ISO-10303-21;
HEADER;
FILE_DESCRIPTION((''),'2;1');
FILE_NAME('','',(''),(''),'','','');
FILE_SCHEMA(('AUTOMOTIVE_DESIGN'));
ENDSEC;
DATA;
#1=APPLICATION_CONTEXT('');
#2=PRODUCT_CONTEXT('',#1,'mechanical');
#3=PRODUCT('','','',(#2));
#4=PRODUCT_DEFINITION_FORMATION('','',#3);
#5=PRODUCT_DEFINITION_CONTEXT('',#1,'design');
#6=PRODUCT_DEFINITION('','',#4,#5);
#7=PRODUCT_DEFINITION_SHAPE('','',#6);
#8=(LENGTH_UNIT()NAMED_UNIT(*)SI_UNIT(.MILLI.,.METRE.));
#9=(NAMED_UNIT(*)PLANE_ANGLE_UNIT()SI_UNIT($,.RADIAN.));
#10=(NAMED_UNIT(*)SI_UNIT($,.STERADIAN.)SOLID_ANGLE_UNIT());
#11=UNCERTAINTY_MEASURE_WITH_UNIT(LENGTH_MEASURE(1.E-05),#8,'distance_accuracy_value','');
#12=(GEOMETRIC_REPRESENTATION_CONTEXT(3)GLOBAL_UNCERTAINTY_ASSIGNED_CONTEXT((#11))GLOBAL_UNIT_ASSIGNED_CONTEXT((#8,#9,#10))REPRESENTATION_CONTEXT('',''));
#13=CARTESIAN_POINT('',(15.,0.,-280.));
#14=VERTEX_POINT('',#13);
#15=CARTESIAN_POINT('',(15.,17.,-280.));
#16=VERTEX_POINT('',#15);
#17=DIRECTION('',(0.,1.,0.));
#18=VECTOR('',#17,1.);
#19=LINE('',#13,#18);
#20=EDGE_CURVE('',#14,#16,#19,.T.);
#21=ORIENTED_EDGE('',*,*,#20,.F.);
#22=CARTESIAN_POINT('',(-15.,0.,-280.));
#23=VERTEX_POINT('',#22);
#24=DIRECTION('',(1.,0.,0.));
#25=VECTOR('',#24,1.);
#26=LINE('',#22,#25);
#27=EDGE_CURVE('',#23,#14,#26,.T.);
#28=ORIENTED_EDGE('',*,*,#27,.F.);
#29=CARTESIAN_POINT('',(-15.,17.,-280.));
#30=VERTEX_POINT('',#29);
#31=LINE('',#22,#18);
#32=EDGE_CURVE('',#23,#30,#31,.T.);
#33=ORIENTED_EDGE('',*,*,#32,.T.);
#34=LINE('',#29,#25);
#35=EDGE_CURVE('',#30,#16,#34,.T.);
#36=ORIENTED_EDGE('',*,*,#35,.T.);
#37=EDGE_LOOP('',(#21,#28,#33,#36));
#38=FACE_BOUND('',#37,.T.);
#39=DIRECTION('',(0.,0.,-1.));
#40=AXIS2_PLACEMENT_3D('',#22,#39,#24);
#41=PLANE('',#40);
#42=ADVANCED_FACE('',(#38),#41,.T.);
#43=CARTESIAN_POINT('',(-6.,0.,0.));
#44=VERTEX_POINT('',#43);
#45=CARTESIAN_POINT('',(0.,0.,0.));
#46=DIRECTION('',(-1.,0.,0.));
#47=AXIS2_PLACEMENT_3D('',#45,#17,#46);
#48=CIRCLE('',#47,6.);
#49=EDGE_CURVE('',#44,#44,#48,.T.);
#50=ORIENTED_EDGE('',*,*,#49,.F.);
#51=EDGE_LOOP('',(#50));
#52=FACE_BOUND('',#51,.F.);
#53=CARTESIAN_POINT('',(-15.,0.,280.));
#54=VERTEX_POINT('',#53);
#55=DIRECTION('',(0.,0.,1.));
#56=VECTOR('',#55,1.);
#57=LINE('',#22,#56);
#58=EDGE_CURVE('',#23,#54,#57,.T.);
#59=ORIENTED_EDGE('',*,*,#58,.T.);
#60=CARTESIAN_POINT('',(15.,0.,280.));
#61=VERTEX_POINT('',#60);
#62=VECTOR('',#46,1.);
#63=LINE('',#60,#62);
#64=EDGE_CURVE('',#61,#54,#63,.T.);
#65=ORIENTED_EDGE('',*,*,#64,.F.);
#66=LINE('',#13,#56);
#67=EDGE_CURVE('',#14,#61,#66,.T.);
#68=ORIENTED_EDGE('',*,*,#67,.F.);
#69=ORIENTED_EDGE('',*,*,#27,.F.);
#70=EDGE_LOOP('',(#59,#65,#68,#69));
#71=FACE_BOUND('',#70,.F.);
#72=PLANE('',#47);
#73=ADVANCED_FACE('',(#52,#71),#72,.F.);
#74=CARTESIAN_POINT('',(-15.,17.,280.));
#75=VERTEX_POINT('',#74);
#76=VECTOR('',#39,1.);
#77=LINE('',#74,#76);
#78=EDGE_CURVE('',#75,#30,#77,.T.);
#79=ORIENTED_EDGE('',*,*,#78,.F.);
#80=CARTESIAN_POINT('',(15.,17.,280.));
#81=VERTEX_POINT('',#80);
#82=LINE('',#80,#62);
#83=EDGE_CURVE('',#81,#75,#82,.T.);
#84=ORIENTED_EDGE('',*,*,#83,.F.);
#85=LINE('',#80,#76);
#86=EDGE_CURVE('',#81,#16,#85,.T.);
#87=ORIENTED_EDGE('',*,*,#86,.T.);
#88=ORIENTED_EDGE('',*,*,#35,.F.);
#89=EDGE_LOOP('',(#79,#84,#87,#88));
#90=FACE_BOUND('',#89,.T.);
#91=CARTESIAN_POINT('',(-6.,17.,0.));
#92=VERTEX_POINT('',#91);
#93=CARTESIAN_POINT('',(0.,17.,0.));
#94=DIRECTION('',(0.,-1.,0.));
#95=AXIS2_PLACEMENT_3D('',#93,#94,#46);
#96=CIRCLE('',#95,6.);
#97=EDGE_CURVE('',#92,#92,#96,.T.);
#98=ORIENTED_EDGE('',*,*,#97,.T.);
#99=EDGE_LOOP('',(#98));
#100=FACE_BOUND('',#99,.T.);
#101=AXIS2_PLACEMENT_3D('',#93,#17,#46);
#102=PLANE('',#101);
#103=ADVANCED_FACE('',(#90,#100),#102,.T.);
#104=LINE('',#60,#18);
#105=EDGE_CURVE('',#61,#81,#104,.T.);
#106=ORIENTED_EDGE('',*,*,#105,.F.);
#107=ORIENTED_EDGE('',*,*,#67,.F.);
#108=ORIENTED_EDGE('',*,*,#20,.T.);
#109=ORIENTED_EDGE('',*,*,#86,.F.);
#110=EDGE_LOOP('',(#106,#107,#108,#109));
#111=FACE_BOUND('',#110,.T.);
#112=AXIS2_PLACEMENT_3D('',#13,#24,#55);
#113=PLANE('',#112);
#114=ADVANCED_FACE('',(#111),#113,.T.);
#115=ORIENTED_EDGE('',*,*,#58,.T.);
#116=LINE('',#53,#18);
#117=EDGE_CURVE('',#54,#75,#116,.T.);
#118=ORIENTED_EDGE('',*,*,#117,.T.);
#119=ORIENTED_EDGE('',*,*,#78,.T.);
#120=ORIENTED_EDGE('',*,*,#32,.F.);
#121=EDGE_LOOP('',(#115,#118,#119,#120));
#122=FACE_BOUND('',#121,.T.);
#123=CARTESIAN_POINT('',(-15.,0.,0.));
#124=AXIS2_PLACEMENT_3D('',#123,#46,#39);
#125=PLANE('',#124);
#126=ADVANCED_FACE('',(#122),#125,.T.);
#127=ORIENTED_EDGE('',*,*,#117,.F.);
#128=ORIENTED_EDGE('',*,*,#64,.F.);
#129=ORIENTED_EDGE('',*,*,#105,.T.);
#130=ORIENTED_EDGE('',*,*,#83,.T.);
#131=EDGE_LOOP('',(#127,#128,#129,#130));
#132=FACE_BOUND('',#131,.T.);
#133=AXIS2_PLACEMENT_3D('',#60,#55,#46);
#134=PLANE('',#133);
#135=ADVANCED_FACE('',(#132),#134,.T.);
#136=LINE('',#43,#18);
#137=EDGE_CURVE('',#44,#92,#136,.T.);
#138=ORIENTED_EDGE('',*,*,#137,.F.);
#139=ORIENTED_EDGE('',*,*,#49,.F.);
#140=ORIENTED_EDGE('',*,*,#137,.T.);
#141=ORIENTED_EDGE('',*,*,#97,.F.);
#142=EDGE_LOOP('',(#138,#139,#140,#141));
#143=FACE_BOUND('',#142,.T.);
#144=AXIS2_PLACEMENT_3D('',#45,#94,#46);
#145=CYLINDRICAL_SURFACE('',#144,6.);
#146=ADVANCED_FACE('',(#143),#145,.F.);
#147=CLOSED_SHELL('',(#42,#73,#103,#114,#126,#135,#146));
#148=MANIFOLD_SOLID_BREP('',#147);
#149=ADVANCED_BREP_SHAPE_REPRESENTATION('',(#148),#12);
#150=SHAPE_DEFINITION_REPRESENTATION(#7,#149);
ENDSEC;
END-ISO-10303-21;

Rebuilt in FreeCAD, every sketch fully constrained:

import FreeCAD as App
import Part
import Sketcher
from FreeCAD import Vector
Q = App.Units.Quantity


def add_polygon(sketch, points):
    """Adds a closed chain of lines whose ends are joined by coincident constraints."""
    first, n = sketch.GeometryCount, len(points)
    for a, b in zip(points, points[1:] + points[:1]):
        sketch.addGeometry(Part.LineSegment(App.Vector(*a, 0), App.Vector(*b, 0)), False)
    for i in range(n):
        sketch.addConstraint(Sketcher.Constraint("Coincident", first + i, 2, first + (i + 1) % n, 1))

doc = App.newDocument("Part")
params = doc.addObject("Spreadsheet::Sheet", "Params")
for row, (alias, value) in enumerate([
    ("sketch1_diameter", "12 mm"),
    ("sketch1_width", "30 mm"),
    ("pad1_length", "17 mm"),
], start=1):
    params.set(f"A{row}", alias)
    params.set(f"B{row}", "=" + value)
    params.setAlias(f"B{row}", alias)

body = doc.addObject("PartDesign::Body", "Body")

# Sketch on XZ plane
sketch1 = body.newObject("Sketcher::SketchObject", "Sketch")
sketch1.AttachmentSupport = (doc.getObject("XZ_Plane"), [""])
sketch1.MapMode = "FlatFace"
add_polygon(sketch1, [(-15, -280), (-15, 280), (15, 280), (15, -280)])  # lines 0-3
sketch1.addGeometry(Part.Circle(Vector(0, 0, 0), Vector(0, 0, 1), 6), False)  # 4
sketch1.addConstraint([
    Sketcher.Constraint("Vertical", 0),
    Sketcher.Constraint("Horizontal", 1),
    Sketcher.Constraint("Vertical", 2),
    Sketcher.Constraint("Horizontal", 3),
    Sketcher.Constraint("Coincident", 4, 3, -1, 1),
    Sketcher.Constraint("Symmetric", 0, 2, 2, 2, -1, 1),
    Sketcher.Constraint("Diameter", 4, Q("12 mm")),
    Sketcher.Constraint("DistanceX", 1, 1, 1, 2, Q("30 mm")),
    Sketcher.Constraint("DistanceY", -1, 1, 0, 2, Q("280 mm")),
])
sketch1.setExpression("Constraints[10]", "Params.sketch1_diameter")
sketch1.setExpression("Constraints[11]", "Params.sketch1_width")
pad1 = body.newObject("PartDesign::Pad", "Pad")
pad1.Profile = sketch1
pad1.setExpression("Length", "Params.pad1_length")
pad1.Reversed = True

doc.recompute()
